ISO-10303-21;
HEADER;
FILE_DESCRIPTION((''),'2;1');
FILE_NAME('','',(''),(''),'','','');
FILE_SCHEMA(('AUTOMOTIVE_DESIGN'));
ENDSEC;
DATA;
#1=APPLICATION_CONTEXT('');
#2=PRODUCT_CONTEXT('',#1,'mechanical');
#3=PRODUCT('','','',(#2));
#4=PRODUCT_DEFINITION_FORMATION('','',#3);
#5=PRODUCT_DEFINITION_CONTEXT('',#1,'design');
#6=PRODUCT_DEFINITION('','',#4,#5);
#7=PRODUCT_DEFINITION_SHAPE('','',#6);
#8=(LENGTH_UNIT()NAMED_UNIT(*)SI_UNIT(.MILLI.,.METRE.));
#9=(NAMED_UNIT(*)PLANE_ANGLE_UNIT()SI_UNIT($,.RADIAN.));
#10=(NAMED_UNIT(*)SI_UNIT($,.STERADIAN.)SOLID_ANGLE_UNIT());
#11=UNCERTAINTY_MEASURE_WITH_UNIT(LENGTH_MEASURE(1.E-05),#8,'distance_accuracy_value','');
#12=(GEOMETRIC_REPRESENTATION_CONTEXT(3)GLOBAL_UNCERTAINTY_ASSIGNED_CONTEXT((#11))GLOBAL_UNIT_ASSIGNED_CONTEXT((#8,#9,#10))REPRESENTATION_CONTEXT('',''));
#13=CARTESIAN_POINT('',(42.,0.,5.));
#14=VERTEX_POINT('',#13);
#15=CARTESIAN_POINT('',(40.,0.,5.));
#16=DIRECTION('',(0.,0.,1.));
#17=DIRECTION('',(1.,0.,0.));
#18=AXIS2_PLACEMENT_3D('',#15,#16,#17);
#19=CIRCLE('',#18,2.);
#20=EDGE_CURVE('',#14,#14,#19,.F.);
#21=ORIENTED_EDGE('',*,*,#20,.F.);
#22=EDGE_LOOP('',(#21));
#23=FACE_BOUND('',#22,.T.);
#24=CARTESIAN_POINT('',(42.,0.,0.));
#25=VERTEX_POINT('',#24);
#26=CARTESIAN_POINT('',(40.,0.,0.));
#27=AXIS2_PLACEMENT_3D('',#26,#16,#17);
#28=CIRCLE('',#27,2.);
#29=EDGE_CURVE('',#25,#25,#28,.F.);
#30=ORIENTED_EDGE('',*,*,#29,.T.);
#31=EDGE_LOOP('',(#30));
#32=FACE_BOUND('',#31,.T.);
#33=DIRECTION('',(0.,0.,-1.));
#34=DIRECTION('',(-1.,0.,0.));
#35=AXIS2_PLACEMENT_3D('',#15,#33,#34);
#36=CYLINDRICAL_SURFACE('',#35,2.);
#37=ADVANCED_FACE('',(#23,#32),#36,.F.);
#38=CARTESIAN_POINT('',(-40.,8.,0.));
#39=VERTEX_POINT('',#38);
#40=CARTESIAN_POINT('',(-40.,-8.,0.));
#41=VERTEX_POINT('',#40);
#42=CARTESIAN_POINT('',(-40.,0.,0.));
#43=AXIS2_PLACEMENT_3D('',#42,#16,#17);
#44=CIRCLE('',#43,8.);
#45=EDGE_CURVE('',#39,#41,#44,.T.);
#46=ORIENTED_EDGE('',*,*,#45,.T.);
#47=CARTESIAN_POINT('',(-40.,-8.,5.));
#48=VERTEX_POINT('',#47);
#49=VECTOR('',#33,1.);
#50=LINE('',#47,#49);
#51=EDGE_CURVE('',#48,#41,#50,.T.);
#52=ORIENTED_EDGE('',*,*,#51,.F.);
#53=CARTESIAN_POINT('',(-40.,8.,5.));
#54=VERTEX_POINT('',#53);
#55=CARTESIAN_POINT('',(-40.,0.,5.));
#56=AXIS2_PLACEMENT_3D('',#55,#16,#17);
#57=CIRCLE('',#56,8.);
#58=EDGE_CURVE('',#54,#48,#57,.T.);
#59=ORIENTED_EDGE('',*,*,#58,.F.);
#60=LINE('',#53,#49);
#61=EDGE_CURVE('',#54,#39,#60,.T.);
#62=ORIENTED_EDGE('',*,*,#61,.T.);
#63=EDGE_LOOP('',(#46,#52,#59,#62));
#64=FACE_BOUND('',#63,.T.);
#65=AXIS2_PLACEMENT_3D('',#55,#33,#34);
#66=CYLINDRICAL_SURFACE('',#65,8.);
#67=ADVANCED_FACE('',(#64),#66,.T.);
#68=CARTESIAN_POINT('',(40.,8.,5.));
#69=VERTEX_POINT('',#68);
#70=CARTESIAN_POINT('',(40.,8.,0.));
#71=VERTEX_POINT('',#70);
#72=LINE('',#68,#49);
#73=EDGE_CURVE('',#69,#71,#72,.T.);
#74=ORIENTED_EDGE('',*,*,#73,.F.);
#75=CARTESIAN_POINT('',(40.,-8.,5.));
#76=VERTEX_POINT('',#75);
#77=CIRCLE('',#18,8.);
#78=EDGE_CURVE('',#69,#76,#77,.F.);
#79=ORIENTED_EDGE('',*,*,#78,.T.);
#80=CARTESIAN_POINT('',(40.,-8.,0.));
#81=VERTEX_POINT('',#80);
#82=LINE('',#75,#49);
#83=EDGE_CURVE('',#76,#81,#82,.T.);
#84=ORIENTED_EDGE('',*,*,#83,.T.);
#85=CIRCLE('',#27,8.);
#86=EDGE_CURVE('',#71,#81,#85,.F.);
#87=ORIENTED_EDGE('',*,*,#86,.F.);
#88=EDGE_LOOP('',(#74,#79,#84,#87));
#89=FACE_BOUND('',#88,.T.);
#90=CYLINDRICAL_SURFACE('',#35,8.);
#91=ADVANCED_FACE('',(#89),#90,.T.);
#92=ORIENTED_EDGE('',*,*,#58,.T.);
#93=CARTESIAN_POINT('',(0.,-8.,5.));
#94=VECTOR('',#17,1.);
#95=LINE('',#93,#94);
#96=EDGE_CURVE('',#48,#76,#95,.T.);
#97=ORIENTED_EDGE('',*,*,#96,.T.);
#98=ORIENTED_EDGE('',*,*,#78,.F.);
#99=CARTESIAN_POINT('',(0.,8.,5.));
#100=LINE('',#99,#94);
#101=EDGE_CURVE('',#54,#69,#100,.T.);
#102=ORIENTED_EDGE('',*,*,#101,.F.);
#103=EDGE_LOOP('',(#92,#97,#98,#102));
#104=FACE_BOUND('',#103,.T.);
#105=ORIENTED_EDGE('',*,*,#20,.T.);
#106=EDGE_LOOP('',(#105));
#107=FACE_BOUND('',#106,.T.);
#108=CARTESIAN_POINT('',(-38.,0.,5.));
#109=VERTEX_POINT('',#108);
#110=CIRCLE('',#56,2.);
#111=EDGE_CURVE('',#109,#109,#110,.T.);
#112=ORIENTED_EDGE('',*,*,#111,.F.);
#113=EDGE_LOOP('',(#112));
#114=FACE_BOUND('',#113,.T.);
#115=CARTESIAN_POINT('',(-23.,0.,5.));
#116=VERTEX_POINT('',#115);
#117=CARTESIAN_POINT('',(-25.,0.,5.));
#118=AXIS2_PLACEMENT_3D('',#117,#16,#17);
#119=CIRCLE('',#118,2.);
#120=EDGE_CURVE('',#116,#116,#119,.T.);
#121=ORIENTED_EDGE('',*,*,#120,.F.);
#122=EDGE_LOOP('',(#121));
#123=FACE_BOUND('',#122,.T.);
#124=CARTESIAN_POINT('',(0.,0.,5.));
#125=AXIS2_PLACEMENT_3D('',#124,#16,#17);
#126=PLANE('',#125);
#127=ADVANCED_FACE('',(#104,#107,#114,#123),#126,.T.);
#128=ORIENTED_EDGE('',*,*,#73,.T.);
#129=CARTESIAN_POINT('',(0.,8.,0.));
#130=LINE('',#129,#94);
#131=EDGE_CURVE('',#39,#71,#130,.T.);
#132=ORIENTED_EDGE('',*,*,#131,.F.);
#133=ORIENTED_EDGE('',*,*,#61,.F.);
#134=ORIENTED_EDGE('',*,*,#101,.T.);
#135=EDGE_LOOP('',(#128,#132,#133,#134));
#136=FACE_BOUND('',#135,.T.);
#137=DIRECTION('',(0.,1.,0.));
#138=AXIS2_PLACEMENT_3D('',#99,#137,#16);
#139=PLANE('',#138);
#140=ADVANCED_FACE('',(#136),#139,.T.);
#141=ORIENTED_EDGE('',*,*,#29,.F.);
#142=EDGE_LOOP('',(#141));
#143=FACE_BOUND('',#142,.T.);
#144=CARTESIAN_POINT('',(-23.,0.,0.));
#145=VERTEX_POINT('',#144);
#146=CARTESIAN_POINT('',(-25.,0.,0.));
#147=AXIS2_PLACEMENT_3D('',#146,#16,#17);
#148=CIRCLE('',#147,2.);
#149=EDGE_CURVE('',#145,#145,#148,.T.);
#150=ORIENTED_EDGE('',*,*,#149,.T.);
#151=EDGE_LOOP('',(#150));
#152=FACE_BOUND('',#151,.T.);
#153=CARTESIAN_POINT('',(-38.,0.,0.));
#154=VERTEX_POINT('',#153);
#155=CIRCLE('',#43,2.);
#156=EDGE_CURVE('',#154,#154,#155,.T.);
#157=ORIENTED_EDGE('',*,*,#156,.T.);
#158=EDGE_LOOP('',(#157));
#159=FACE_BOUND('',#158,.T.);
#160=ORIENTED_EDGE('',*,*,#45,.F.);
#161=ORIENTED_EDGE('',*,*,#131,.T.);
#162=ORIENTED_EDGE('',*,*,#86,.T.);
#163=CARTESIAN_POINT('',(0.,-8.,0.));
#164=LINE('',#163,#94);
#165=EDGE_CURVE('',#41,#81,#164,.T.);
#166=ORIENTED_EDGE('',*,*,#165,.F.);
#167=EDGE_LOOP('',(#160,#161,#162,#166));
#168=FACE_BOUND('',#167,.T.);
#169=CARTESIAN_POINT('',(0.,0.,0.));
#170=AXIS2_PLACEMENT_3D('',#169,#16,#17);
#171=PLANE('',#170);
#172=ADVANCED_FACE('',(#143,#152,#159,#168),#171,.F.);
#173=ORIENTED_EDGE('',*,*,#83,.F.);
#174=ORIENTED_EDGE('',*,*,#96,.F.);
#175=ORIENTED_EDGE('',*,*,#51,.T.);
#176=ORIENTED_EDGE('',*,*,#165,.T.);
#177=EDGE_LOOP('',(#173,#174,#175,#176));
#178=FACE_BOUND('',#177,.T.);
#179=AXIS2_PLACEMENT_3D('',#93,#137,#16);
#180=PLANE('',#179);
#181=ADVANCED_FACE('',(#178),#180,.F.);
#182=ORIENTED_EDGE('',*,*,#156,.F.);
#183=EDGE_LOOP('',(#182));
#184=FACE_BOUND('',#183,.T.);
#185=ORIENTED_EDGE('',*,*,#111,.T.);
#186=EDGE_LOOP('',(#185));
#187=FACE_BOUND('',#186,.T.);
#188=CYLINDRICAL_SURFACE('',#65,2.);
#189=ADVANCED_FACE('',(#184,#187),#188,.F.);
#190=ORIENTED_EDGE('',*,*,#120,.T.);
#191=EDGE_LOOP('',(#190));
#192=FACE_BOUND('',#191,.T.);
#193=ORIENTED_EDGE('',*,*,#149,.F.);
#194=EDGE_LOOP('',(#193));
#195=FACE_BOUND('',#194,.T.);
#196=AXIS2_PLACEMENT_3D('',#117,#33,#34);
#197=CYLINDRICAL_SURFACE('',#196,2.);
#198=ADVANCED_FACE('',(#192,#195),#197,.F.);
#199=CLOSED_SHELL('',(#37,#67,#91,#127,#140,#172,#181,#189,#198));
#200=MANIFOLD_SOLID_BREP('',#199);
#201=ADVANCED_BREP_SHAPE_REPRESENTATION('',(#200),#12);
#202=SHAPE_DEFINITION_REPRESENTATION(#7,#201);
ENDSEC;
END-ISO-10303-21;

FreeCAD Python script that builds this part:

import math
import FreeCAD as App
import Part
import Sketcher
Q = App.Units.Quantity

doc = App.newDocument("Part")
body = doc.addObject("PartDesign::Body", "Body")

# Sketch on XY plane
sketch1 = doc.addObject("Sketcher::SketchObject", "Sketch")
body.addObject(sketch1)
sketch1.AttachmentSupport = (doc.XY_Plane, [""])
sketch1.MapMode = "FlatFace"
sketch1.addGeometry([
    Part.LineSegment(App.Vector(40, 8, 0), App.Vector(-40, 8, 0)),  # 0
    Part.ArcOfCircle(Part.Circle(App.Vector(-40, 0, 0), App.Vector(0, 0, 1), 8), math.radians(90), math.radians(270)),  # 1
    Part.LineSegment(App.Vector(-40, -8, 0), App.Vector(40, -8, 0)),  # 2
    Part.ArcOfCircle(Part.Circle(App.Vector(40, 0, 0), App.Vector(0, 0, 1), 8), math.radians(-90), math.radians(90)),  # 3
    Part.Circle(App.Vector(40, 0, 0), App.Vector(0, 0, 1), 2),  # 4
    Part.Circle(App.Vector(-25, 0, 0), App.Vector(0, 0, 1), 2),  # 5
    Part.Circle(App.Vector(-40, 0, 0), App.Vector(0, 0, 1), 2),  # 6
], False)
sketch1.addConstraint([
    Sketcher.Constraint("Tangent", 0, 2, 1, 1),
    Sketcher.Constraint("Tangent", 1, 2, 2, 1),
    Sketcher.Constraint("Tangent", 2, 2, 3, 1),
    Sketcher.Constraint("Tangent", 3, 2, 0, 1),
    Sketcher.Constraint("Horizontal", 0),
    Sketcher.Constraint("Horizontal", 2),
    Sketcher.Constraint("Coincident", 4, 3, 3, 3),
    Sketcher.Constraint("Coincident", 6, 3, 1, 3),
    Sketcher.Constraint("Equal", 4, 5),
    Sketcher.Constraint("Equal", 5, 6),
    Sketcher.Constraint("Symmetric", 1, 3, 3, 3, -1, 1),
    Sketcher.Constraint("PointOnObject", 5, 3, -1),
    Sketcher.Constraint("Diameter", 4, Q("4 mm")),
    Sketcher.Constraint("Radius", 1, Q("8 mm")),
    Sketcher.Constraint("DistanceX", 0, 2, 0, 1, Q("80 mm")),
    Sketcher.Constraint("DistanceX", 5, 3, -1, 1, Q("25 mm")),
])
pad1 = doc.addObject("PartDesign::Pad", "Pad")
body.addObject(pad1)
pad1.Profile = sketch1
pad1.Length = 5

doc.recompute()
